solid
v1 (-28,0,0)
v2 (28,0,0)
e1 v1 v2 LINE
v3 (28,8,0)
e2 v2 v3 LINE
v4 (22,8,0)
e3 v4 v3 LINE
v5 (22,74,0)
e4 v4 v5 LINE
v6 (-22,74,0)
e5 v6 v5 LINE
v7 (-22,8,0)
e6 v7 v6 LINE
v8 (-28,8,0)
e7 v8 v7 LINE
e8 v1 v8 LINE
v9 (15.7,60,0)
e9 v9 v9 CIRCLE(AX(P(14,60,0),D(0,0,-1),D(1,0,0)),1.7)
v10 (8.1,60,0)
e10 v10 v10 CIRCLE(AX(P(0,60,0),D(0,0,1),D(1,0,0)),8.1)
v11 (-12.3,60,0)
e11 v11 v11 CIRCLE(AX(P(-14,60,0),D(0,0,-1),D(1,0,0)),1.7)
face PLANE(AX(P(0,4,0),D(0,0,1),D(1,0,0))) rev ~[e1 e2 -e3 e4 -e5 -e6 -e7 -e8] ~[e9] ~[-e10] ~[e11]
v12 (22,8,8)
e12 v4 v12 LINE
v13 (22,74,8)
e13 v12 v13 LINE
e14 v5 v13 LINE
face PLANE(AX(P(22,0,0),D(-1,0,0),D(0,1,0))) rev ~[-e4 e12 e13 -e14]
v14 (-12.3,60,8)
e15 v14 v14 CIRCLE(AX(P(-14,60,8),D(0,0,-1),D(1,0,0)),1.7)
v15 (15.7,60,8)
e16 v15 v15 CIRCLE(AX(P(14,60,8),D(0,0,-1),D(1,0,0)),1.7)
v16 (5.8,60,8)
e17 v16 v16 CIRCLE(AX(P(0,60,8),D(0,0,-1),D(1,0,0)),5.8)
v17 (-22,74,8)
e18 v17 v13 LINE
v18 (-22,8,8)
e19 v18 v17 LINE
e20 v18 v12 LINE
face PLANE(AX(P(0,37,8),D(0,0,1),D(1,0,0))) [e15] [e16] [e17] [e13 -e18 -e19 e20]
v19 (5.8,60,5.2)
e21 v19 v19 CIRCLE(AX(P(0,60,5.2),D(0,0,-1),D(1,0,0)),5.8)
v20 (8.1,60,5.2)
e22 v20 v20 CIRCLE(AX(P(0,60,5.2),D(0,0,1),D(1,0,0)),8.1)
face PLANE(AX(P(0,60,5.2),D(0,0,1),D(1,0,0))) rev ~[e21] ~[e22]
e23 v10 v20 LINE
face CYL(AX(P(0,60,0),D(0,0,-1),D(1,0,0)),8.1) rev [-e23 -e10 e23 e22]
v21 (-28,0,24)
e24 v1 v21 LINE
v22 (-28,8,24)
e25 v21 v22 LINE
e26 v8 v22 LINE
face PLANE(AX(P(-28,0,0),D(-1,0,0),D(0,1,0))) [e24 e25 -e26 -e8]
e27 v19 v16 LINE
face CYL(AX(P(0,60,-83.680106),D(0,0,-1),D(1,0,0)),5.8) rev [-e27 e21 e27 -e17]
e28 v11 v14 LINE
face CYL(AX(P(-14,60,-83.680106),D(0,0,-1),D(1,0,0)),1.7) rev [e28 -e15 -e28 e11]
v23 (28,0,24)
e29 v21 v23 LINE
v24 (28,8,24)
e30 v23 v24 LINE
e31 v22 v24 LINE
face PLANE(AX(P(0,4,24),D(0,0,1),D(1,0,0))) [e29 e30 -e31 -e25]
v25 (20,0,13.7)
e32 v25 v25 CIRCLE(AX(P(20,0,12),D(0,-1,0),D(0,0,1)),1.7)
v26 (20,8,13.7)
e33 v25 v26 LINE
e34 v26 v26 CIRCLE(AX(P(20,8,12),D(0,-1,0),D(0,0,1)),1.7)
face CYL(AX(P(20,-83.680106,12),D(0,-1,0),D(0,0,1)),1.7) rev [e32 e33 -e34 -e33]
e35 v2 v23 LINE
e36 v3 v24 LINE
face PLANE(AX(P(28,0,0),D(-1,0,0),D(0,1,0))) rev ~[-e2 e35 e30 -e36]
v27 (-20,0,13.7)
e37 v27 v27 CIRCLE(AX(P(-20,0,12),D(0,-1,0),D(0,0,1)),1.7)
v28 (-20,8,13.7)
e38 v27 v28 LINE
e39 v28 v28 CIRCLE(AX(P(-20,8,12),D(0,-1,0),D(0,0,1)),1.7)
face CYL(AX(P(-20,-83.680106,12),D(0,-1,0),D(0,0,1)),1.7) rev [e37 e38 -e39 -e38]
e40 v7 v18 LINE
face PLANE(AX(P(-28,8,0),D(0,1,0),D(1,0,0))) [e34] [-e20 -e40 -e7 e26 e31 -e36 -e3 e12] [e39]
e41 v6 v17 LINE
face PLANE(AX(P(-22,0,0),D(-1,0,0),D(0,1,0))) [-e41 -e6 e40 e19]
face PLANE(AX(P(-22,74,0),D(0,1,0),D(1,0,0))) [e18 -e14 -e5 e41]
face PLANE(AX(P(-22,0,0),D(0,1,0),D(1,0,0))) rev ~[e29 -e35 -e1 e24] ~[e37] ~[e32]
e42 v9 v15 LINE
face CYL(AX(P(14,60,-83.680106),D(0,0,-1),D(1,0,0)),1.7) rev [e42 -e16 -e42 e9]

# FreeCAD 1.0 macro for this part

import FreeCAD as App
import Part
import Sketcher

V = App.Vector

doc = App.newDocument("Part")
body = doc.addObject("PartDesign::Body", "Body")

sketch1 = body.newObject("Sketcher::SketchObject", "Sketch")
sketch1.AttachmentSupport = (doc.getObject("XY_Plane"), [""])
sketch1.MapMode = "FlatFace"
sketch1.addGeometry([
    Part.LineSegment(V(-28, 8, 0), V(-28, 0, 0)),
    Part.LineSegment(V(-28, 0, 0), V(28, 0, 0)),
    Part.LineSegment(V(28, 0, 0), V(28, 8, 0)),
    Part.LineSegment(V(28, 8, 0), V(-28, 8, 0)),
], False)
sketch1.addConstraint([
    Sketcher.Constraint("Coincident", 0, 2, 1, 1),
    Sketcher.Constraint("Coincident", 1, 2, 2, 1),
    Sketcher.Constraint("Coincident", 2, 2, 3, 1),
    Sketcher.Constraint("Coincident", 3, 2, 0, 1),
    Sketcher.Constraint("Vertical", 0),
    Sketcher.Constraint("Horizontal", 1),
    Sketcher.Constraint("Vertical", 2),
    Sketcher.Constraint("Horizontal", 3),
    Sketcher.Constraint("Symmetric", 0, 2, 1, 2, -1, 1),
    Sketcher.Constraint("DistanceX", 1, 1, 1, 2, 56.0),
    Sketcher.Constraint("DistanceY", 0, 2, 0, 1, 8.0),
])
pad1 = body.newObject("PartDesign::Pad", "Pad")
pad1.Profile = sketch1
pad1.Length = 24

sketch2 = body.newObject("Sketcher::SketchObject", "Sketch001")
sketch2.AttachmentSupport = (doc.getObject("XY_Plane"), [""])
sketch2.MapMode = "FlatFace"
sketch2.addGeometry([
    Part.LineSegment(V(-22, 74, 0), V(-22, 0, 0)),
    Part.LineSegment(V(-22, 0, 0), V(22, 0, 0)),
    Part.LineSegment(V(22, 0, 0), V(22, 74, 0)),
    Part.LineSegment(V(22, 74, 0), V(-22, 74, 0)),
], False)
sketch2.addConstraint([
    Sketcher.Constraint("Coincident", 0, 2, 1, 1),
    Sketcher.Constraint("Coincident", 1, 2, 2, 1),
    Sketcher.Constraint("Coincident", 2, 2, 3, 1),
    Sketcher.Constraint("Coincident", 3, 2, 0, 1),
    Sketcher.Constraint("Vertical", 0),
    Sketcher.Constraint("Horizontal", 1),
    Sketcher.Constraint("Vertical", 2),
    Sketcher.Constraint("Horizontal", 3),
    Sketcher.Constraint("Symmetric", 0, 2, 1, 2, -1, 1),
    Sketcher.Constraint("DistanceX", 1, 1, 1, 2, 44.0),
    Sketcher.Constraint("DistanceY", 0, 2, 0, 1, 74.0),
])
pad2 = body.newObject("PartDesign::Pad", "Pad001")
pad2.Profile = sketch2
pad2.Length = 8

sketch3 = body.newObject("Sketcher::SketchObject", "Sketch002")
sketch3.AttachmentSupport = (doc.getObject("XY_Plane"), [""])
sketch3.MapMode = "FlatFace"
sketch3.addGeometry([
    Part.Circle(V(0, 60, 0), V(0, 0, 1), 5.8),
    Part.Circle(V(-14, 60, 0), V(0, 0, 1), 1.7),
    Part.Circle(V(14, 60, 0), V(0, 0, 1), 1.7),
], False)
sketch3.addConstraint([
    Sketcher.Constraint("Equal", 1, 2),
    Sketcher.Constraint("Symmetric", 1, 3, 2, 3, -2),
    Sketcher.Constraint("PointOnObject", 0, 3, -2),
    Sketcher.Constraint("Horizontal", 0, 3, 1, 3),
    Sketcher.Constraint("Diameter", 0, 11.6),
    Sketcher.Constraint("Diameter", 1, 3.4),
    Sketcher.Constraint("DistanceY", -1, 1, 0, 3, 60.0),
    Sketcher.Constraint("DistanceX", 1, 3, -1, 1, 14.0),
])
pocket1 = body.newObject("PartDesign::Pocket", "Pocket")
pocket1.Profile = sketch3
pocket1.Type = "ThroughAll"
pocket1.Midplane = True

sketch4 = body.newObject("Sketcher::SketchObject", "Sketch003")
sketch4.AttachmentSupport = (doc.getObject("XY_Plane"), [""])
sketch4.MapMode = "FlatFace"
sketch4.addGeometry(Part.Circle(V(0, 60, 0), V(0, 0, 1), 8), False)
sketch4.addConstraint([
    Sketcher.Constraint("PointOnObject", 0, 3, -2),
    Sketcher.Constraint("Diameter", 0, 16.2),
    Sketcher.Constraint("DistanceY", -1, 1, 0, 3, 60.0),
])
pocket2 = body.newObject("PartDesign::Pocket", "Pocket001")
pocket2.Profile = sketch4
pocket2.Length = 5.2
pocket2.Reversed = True

sketch5 = body.newObject("Sketcher::SketchObject", "Sketch004")
sketch5.AttachmentSupport = (doc.getObject("XZ_Plane"), [""])
sketch5.MapMode = "FlatFace"
sketch5.addGeometry([
    Part.Circle(V(-20, 12, 0), V(0, 0, 1), 1.7),
    Part.Circle(V(20, 12, 0), V(0, 0, 1), 1.7),
], False)
sketch5.addConstraint([
    Sketcher.Constraint("Equal", 0, 1),
    Sketcher.Constraint("Symmetric", 0, 3, 1, 3, -2),
    Sketcher.Constraint("Diameter", 0, 3.4),
    Sketcher.Constraint("DistanceX", 0, 3, -1, 1, 20.0),
    Sketcher.Constraint("DistanceY", -1, 1, 0, 3, 12.0),
])
pocket3 = body.newObject("PartDesign::Pocket", "Pocket002")
pocket3.Profile = sketch5
pocket3.Type = "ThroughAll"
pocket3.Midplane = True

doc.recompute()
